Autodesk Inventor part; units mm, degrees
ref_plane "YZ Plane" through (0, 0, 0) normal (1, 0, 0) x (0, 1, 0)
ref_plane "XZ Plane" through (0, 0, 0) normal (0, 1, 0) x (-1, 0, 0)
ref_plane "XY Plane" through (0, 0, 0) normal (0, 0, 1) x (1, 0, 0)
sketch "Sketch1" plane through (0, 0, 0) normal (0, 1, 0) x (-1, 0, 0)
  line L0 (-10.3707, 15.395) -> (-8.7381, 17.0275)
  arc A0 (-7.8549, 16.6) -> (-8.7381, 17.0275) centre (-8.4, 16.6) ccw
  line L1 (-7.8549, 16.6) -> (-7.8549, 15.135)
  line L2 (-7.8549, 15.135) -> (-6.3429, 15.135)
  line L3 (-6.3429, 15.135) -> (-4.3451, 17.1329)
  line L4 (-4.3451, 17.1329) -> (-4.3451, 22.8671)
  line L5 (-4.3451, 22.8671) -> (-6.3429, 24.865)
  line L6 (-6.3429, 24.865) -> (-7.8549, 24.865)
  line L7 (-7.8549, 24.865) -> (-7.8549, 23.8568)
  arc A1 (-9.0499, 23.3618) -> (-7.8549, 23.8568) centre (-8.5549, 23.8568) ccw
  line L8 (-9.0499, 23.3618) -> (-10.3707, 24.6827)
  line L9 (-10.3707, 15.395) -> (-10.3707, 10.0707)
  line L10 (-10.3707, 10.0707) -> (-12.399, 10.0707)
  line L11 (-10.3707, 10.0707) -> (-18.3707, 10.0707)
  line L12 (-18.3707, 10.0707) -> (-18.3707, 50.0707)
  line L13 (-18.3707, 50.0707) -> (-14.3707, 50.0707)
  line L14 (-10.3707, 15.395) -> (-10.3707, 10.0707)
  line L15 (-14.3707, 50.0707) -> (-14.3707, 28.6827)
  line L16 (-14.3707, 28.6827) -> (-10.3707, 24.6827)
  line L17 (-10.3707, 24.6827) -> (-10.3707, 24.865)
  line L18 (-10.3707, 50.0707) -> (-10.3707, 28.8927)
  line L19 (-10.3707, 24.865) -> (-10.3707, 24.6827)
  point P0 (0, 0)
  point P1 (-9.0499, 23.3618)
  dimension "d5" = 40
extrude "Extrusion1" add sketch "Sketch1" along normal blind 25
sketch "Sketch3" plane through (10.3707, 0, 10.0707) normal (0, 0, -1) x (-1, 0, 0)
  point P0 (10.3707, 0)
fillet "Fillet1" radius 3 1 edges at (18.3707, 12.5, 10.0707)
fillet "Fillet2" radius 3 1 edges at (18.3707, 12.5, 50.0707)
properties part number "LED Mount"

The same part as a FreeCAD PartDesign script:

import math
import FreeCAD as App
import Part
import Sketcher

V = App.Vector
Q = App.Units.Quantity


def edges_at(feature, points):
    """Names of the edges that pass closest to the given points."""
    edges = feature.Shape.Edges
    near = lambda p: min(range(len(edges)), key=lambda i: edges[i].distToShape(Part.Vertex(*p))[0])
    return sorted({f"Edge{near(p) + 1}" for p in points})

doc = App.newDocument("Part")
body = doc.addObject("PartDesign::Body", "Body")

# Sketch on XZ plane
sketch1 = doc.addObject("Sketcher::SketchObject", "Sketch")
body.addObject(sketch1)
sketch1.AttachmentSupport = (doc.XZ_Plane, [""])
sketch1.MapMode = "FlatFace"
sketch1.addGeometry([
    Part.LineSegment(V(10.4, 10.1, 0), V(10.4, 15.4, 0)),  # 0
    Part.LineSegment(V(10.4, 15.4, 0), V(8.7, 17, 0)),  # 1
    Part.ArcOfCircle(Part.Circle(V(8.4, 16.6, 0), V(0, 0, 1), 0.5), math.radians(52), math.radians(180)),  # 2
    Part.LineSegment(V(7.9, 16.6, 0), V(7.9, 15.1, 0)),  # 3
    Part.LineSegment(V(7.9, 15.1, 0), V(6.3, 15.1, 0)),  # 4
    Part.LineSegment(V(6.3, 15.1, 0), V(4.3, 17.1, 0)),  # 5
    Part.LineSegment(V(4.3, 17.1, 0), V(4.3, 22.9, 0)),  # 6
    Part.LineSegment(V(4.3, 22.9, 0), V(6.3, 24.9, 0)),  # 7
    Part.LineSegment(V(6.3, 24.9, 0), V(7.9, 24.9, 0)),  # 8
    Part.LineSegment(V(7.9, 24.9, 0), V(7.9, 23.9, 0)),  # 9
    Part.ArcOfCircle(Part.Circle(V(8.6, 23.9, 0), V(0, 0, 1), 0.7), math.radians(180), math.radians(315)),  # 10
    Part.LineSegment(V(9, 23.4, 0), V(10.4, 24.7, 0)),  # 11
    Part.LineSegment(V(10.4, 24.7, 0), V(14.4, 28.7, 0)),  # 12
    Part.LineSegment(V(14.4, 28.7, 0), V(14.4, 50.1, 0)),  # 13
    Part.LineSegment(V(14.4, 50.1, 0), V(18.4, 50.1, 0)),  # 14
    Part.LineSegment(V(18.4, 50.1, 0), V(18.4, 10.1, 0)),  # 15
    Part.LineSegment(V(18.4, 10.1, 0), V(10.4, 10.1, 0)),  # 16
], False)
sketch1.addConstraint([
    Sketcher.Constraint("Coincident", 0, 2, 1, 1),
    Sketcher.Constraint("Coincident", 1, 2, 2, 1),
    Sketcher.Constraint("Tangent", 2, 2, 3, 1),
    Sketcher.Constraint("Coincident", 3, 2, 4, 1),
    Sketcher.Constraint("Coincident", 4, 2, 5, 1),
    Sketcher.Constraint("Coincident", 5, 2, 6, 1),
    Sketcher.Constraint("Coincident", 6, 2, 7, 1),
    Sketcher.Constraint("Coincident", 7, 2, 8, 1),
    Sketcher.Constraint("Coincident", 8, 2, 9, 1),
    Sketcher.Constraint("Tangent", 9, 2, 10, 1),
    Sketcher.Constraint("Tangent", 10, 2, 11, 1),
    Sketcher.Constraint("Coincident", 11, 2, 12, 1),
    Sketcher.Constraint("Coincident", 12, 2, 13, 1),
    Sketcher.Constraint("Coincident", 13, 2, 14, 1),
    Sketcher.Constraint("Coincident", 14, 2, 15, 1),
    Sketcher.Constraint("Coincident", 15, 2, 16, 1),
    Sketcher.Constraint("Coincident", 16, 2, 0, 1),
    Sketcher.Constraint("Vertical", 0),
    Sketcher.Constraint("Vertical", 3),
    Sketcher.Constraint("Horizontal", 4),
    Sketcher.Constraint("Vertical", 6),
    Sketcher.Constraint("Horizontal", 8),
    Sketcher.Constraint("Vertical", 9),
    Sketcher.Constraint("Vertical", 13),
    Sketcher.Constraint("Horizontal", 14),
    Sketcher.Constraint("Vertical", 15),
    Sketcher.Constraint("Horizontal", 16),
    Sketcher.Constraint("Parallel", 1, 5),
    Sketcher.Constraint("Perpendicular", 5, 7),
    Sketcher.Constraint("Parallel", 7, 11),
    Sketcher.Constraint("Parallel", 11, 12),
    Sketcher.Constraint("Vertical", 4, 2, 7, 2),
    Sketcher.Constraint("Vertical", 3, 2, 8, 2),
    Sketcher.Constraint("Vertical", 0, 2, 11, 2),
    Sketcher.Constraint("Equal", 5, 7),
    Sketcher.Constraint("DistanceY", 15, 2, 15, 1, Q("40 mm")),
    Sketcher.Constraint("Radius", 10, Q("0.7 mm")),
    Sketcher.Constraint("DistanceX", 14, 1, 14, 2, Q("4 mm")),
    Sketcher.Constraint("DistanceX", 16, 2, 16, 1, Q("8 mm")),
    Sketcher.Constraint("Radius", 2, Q("0.545 mm")),
    Sketcher.Constraint("DistanceX", -1, 1, 2, 3, Q("8.4 mm")),
    Sketcher.Constraint("DistanceY", -1, 1, 2, 3, Q("16.6 mm")),
    Sketcher.Constraint("DistanceX", 4, 2, 4, 1, Q("1.512 mm")),
    Sketcher.Constraint("DistanceY", 3, 2, 3, 1, Q("1.465 mm")),
    Sketcher.Constraint("DistanceY", 13, 1, 13, 2, Q("21.388 mm")),
    Sketcher.Constraint("DistanceY", 3, 2, 0, 2, Q("0.26 mm")),
    Sketcher.Constraint("Distance", 11, Q("1.868 mm")),
    Sketcher.Constraint("DistanceY", 0, 1, 0, 2, Q("5.3243 mm")),
    Sketcher.Constraint("DistanceY", 6, 1, 6, 2, Q("5.7342 mm")),
    Sketcher.Constraint("DistanceY", 9, 2, 9, 1, Q("1.0082 mm")),
])
pad1 = doc.addObject("PartDesign::Pad", "Pad")
body.addObject(pad1)
pad1.Profile = sketch1
pad1.Length = 25
pad1.Reversed = True
doc.recompute()

fillet = doc.addObject("PartDesign::Fillet", "Fillet")
body.addObject(fillet)
fillet.Base = (pad1, edges_at(pad1, [(18.371, 12.5, 10.071)]))
fillet.Radius = 3
doc.recompute()

fillet2 = doc.addObject("PartDesign::Fillet", "Fillet001")
body.addObject(fillet2)
fillet2.Base = (fillet, edges_at(fillet, [(18.371, 12.5, 50.071)]))
fillet2.Radius = 3

doc.recompute()
